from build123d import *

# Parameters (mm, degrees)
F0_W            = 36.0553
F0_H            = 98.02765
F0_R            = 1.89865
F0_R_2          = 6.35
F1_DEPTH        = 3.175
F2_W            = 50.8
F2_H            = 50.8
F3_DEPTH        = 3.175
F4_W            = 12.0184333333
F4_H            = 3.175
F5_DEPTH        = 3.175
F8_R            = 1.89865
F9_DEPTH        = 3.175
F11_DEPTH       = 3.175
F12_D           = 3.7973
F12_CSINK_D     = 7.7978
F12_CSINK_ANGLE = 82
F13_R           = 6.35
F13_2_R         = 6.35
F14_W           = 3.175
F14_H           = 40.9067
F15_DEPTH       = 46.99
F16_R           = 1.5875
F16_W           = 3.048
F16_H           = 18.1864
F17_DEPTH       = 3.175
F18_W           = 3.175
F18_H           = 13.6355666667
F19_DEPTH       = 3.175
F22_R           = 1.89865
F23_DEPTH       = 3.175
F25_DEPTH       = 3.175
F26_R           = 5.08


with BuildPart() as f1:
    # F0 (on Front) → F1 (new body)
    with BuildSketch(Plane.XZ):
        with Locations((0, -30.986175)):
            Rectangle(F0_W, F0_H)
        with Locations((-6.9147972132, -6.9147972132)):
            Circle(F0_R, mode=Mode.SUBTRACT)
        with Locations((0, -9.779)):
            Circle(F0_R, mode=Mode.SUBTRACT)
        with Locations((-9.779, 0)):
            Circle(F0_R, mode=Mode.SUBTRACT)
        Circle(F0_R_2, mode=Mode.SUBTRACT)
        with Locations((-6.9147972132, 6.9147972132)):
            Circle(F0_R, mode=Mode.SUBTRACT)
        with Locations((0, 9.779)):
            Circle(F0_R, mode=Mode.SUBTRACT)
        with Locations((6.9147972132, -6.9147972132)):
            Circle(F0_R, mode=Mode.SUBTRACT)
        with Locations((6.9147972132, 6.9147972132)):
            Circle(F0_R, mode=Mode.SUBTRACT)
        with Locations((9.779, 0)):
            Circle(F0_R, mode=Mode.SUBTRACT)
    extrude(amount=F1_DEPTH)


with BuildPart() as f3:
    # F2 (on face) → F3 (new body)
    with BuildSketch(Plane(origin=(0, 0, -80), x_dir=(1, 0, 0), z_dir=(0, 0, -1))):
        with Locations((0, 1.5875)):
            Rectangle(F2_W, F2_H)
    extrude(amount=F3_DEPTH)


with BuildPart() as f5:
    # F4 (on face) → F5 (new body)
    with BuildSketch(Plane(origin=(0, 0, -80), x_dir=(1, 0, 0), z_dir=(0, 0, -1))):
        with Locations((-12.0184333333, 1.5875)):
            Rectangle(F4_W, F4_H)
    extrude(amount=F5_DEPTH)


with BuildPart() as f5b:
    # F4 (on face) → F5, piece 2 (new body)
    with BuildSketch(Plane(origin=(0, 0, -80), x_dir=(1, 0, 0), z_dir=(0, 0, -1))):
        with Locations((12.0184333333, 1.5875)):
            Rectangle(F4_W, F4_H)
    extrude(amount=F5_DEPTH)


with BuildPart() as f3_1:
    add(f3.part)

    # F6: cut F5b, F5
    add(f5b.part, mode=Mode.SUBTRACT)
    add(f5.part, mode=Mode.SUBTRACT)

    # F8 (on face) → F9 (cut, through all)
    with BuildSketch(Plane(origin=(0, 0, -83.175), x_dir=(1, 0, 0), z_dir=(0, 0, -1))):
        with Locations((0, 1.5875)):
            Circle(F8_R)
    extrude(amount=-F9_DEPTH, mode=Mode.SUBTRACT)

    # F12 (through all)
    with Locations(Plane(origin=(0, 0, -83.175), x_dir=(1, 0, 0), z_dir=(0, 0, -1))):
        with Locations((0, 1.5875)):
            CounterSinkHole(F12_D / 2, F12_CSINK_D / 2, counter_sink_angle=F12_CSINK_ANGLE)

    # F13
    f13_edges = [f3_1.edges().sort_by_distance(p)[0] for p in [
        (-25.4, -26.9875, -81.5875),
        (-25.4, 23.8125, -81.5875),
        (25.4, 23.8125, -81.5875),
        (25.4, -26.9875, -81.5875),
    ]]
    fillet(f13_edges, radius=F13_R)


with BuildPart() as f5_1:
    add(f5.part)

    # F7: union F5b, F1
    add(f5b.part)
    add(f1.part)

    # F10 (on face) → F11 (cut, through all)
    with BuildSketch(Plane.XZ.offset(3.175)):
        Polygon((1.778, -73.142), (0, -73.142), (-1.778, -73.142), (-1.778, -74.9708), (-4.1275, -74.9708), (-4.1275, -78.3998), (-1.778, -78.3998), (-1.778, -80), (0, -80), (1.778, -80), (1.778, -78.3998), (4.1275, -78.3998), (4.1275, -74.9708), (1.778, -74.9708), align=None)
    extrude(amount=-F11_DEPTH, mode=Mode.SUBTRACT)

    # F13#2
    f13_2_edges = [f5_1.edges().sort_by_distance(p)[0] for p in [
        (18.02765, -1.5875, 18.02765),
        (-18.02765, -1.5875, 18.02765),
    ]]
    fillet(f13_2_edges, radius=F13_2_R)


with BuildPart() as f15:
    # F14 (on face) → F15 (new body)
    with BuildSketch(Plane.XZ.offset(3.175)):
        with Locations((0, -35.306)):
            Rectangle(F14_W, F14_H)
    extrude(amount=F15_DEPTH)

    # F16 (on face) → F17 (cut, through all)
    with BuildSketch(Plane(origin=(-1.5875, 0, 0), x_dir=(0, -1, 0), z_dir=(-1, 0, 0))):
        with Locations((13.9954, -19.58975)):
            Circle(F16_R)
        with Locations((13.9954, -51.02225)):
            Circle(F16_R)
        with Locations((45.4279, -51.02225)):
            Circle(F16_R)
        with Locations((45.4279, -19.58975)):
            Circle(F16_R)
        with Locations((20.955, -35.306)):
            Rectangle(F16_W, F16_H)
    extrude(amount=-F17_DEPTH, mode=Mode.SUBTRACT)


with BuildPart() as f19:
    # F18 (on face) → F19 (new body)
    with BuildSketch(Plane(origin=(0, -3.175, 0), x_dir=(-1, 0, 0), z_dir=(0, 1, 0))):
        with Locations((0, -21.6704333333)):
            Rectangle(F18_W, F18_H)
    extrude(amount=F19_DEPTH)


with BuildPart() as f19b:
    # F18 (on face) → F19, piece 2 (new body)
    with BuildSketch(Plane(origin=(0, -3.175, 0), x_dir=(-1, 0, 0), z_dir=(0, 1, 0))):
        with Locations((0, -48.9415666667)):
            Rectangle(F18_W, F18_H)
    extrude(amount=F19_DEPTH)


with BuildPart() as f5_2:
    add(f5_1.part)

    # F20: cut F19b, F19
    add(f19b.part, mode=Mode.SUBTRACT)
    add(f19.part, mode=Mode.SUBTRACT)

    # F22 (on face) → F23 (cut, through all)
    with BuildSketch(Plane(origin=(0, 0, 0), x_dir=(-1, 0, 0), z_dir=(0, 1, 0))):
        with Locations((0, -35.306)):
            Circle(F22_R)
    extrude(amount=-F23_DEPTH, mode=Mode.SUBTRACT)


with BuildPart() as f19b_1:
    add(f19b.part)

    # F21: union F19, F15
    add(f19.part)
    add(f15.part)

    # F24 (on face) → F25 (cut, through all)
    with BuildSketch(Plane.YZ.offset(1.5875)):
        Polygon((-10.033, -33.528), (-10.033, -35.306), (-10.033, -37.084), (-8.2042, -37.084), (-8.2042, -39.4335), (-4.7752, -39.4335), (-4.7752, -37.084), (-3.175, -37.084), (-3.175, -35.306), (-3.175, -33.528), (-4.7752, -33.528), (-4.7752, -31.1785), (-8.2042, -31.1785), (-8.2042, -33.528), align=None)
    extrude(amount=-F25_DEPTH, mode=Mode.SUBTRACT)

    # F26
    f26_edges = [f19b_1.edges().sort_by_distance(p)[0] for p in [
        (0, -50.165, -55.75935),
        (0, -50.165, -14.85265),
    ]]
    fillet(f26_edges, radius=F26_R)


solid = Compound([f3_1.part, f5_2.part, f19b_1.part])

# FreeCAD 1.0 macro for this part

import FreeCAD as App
import Part
import Sketcher
Q = App.Units.Quantity


def edges_at(feature, points):
    """Names of the edges that pass closest to the given points."""
    edges = feature.Shape.Edges
    near = lambda p: min(range(len(edges)), key=lambda i: edges[i].distToShape(Part.Vertex(*p))[0])
    return sorted({f"Edge{near(p) + 1}" for p in points})

doc = App.newDocument("Part")
body = doc.addObject("PartDesign::Body", "Body")

# Sketch on XZ plane
sketch1 = body.newObject("Sketcher::SketchObject", "Sketch")
sketch1.AttachmentSupport = (doc.getObject("XZ_Plane"), [""])
sketch1.MapMode = "FlatFace"
sketch1.addGeometry(Part.LineSegment(App.Vector(-18.02765, 18.02765, 0), App.Vector(-18.02765, -80, 0)), False)
sketch1.addGeometry(Part.LineSegment(App.Vector(-18.02765, -80, 0), App.Vector(18.02765, -80, 0)), False)
sketch1.addGeometry(Part.LineSegment(App.Vector(18.02765, -80, 0), App.Vector(18.02765, 18.02765, 0)), False)
sketch1.addGeometry(Part.LineSegment(App.Vector(18.02765, 18.02765, 0), App.Vector(-18.02765, 18.02765, 0)), False)
sketch1.addGeometry(Part.Circle(App.Vector(-6.914797, -6.914797, 0), App.Vector(0, 0, 1), 1.89865), False)
sketch1.addGeometry(Part.Circle(App.Vector(-9.779, 0, 0), App.Vector(0, 0, 1), 1.89865), False)
sketch1.addGeometry(Part.Circle(App.Vector(0, -9.779, 0), App.Vector(0, 0, 1), 1.89865), False)
sketch1.addGeometry(Part.Circle(App.Vector(6.914797, -6.914797, 0), App.Vector(0, 0, 1), 1.89865), False)
sketch1.addGeometry(Part.Circle(App.Vector(0, 0, 0), App.Vector(0, 0, 1), 6.35), False)
sketch1.addGeometry(Part.Circle(App.Vector(9.779, 0, 0), App.Vector(0, 0, 1), 1.89865), False)
sketch1.addGeometry(Part.Circle(App.Vector(-6.914797, 6.914797, 0), App.Vector(0, 0, 1), 1.89865), False)
sketch1.addGeometry(Part.Circle(App.Vector(0, 9.779, 0), App.Vector(0, 0, 1), 1.89865), False)
sketch1.addGeometry(Part.Circle(App.Vector(6.914797, 6.914797, 0), App.Vector(0, 0, 1), 1.89865), False)
sketch1.addConstraint(Sketcher.Constraint("Coincident", 0, 2, 1, 1))
sketch1.addConstraint(Sketcher.Constraint("Coincident", 1, 2, 2, 1))
sketch1.addConstraint(Sketcher.Constraint("Coincident", 2, 2, 3, 1))
sketch1.addConstraint(Sketcher.Constraint("Coincident", 3, 2, 0, 1))
sketch1.addConstraint(Sketcher.Constraint("Vertical", 0))
sketch1.addConstraint(Sketcher.Constraint("Horizontal", 1))
sketch1.addConstraint(Sketcher.Constraint("Vertical", 2))
sketch1.addConstraint(Sketcher.Constraint("Horizontal", 3))
sketch1.addConstraint(Sketcher.Constraint("Coincident", 8, 3, -1, 1))
sketch1.addConstraint(Sketcher.Constraint("Equal", 4, 5))
sketch1.addConstraint(Sketcher.Constraint("Equal", 5, 6))
sketch1.addConstraint(Sketcher.Constraint("Equal", 6, 7))
sketch1.addConstraint(Sketcher.Constraint("Equal", 7, 9))
sketch1.addConstraint(Sketcher.Constraint("Equal", 9, 10))
sketch1.addConstraint(Sketcher.Constraint("Equal", 10, 11))
sketch1.addConstraint(Sketcher.Constraint("Equal", 11, 12))
sketch1.addConstraint(Sketcher.Constraint("Symmetric", 5, 3, 9, 3, -1, 1))
sketch1.addConstraint(Sketcher.Constraint("Symmetric", 7, 3, 10, 3, -1, 1))
sketch1.addConstraint(Sketcher.Constraint("Symmetric", 6, 3, 11, 3, -1, 1))
sketch1.addConstraint(Sketcher.Constraint("Symmetric", 4, 3, 12, 3, -1, 1))
sketch1.addConstraint(Sketcher.Constraint("Symmetric", 4, 3, 7, 3, -2))
sketch1.addConstraint(Sketcher.Constraint("PointOnObject", 5, 3, -1))
sketch1.addConstraint(Sketcher.Constraint("PointOnObject", 6, 3, -2))
sketch1.addConstraint(Sketcher.Constraint("Diameter", 8, Q("0.5 in")))
sketch1.addConstraint(Sketcher.Constraint("Diameter", 4, Q("0.1495 in")))
sketch1.addConstraint(Sketcher.Constraint("DistanceX", 5, 3, 9, 3, Q("0.77 in")))
sketch1.addConstraint(Sketcher.Constraint("DistanceX", 1, 1, 1, 2, Q("1.4195 in")))
sketch1.addConstraint(Sketcher.Constraint("DistanceY", 6, 3, -1, 1, Q("0.385 in")))
sketch1.addConstraint(Sketcher.Constraint("DistanceY", 0, 2, 0, 1, Q("98.02765 mm")))
sketch1.addConstraint(Sketcher.Constraint("DistanceY", 0, 2, -1, 1, Q("80 mm")))
sketch1.addConstraint(Sketcher.Constraint("DistanceX", 0, 2, -1, 1, Q("18.02765 mm")))
sketch1.addConstraint(Sketcher.Constraint("DistanceX", 4, 3, -1, 1, Q("6.914797 mm")))
sketch1.addConstraint(Sketcher.Constraint("DistanceY", 4, 3, -1, 1, Q("6.914797 mm")))
pad1 = body.newObject("PartDesign::Pad", "Pad")
pad1.Profile = sketch1
pad1.Length = Q("0.125 in")
body2 = doc.addObject("PartDesign::Body", "Body001")

# Sketch on XY plane
sketch2 = body2.newObject("Sketcher::SketchObject", "Sketch001")
sketch2.AttachmentSupport = (doc.getObject("XY_Plane001"), [""])
sketch2.MapMode = "FlatFace"
sketch2.AttachmentOffset = App.Placement(App.Vector(0, 0, -80), App.Rotation())
sketch2.addGeometry(Part.LineSegment(App.Vector(-25.4, -26.9875, 0), App.Vector(-25.4, 23.8125, 0)), False)
sketch2.addGeometry(Part.LineSegment(App.Vector(-25.4, 23.8125, 0), App.Vector(25.4, 23.8125, 0)), False)
sketch2.addGeometry(Part.LineSegment(App.Vector(25.4, 23.8125, 0), App.Vector(25.4, -26.9875, 0)), False)
sketch2.addGeometry(Part.LineSegment(App.Vector(25.4, -26.9875, 0), App.Vector(-25.4, -26.9875, 0)), False)
sketch2.addConstraint(Sketcher.Constraint("Coincident", 0, 2, 1, 1))
sketch2.addConstraint(Sketcher.Constraint("Coincident", 1, 2, 2, 1))
sketch2.addConstraint(Sketcher.Constraint("Coincident", 2, 2, 3, 1))
sketch2.addConstraint(Sketcher.Constraint("Coincident", 3, 2, 0, 1))
sketch2.addConstraint(Sketcher.Constraint("Vertical", 0))
sketch2.addConstraint(Sketcher.Constraint("Horizontal", 1))
sketch2.addConstraint(Sketcher.Constraint("Vertical", 2))
sketch2.addConstraint(Sketcher.Constraint("Horizontal", 3))
sketch2.addConstraint(Sketcher.Constraint("Equal", 3, 0))
sketch2.addConstraint(Sketcher.Constraint("DistanceX", 1, 1, 1, 2, Q("2 in")))
sketch2.addConstraint(Sketcher.Constraint("DistanceX", 0, 2, -1, 1, Q("1 in")))
sketch2.addConstraint(Sketcher.Constraint("DistanceY", -1, 1, 0, 2, Q("0.9375 in")))
pad2 = body2.newObject("PartDesign::Pad", "Pad001")
pad2.Profile = sketch2
pad2.Length = Q("0.125 in")
pad2.Reversed = True
body3 = doc.addObject("PartDesign::Body", "Body002")

# Sketch on XY plane
sketch3 = body3.newObject("Sketcher::SketchObject", "Sketch002")
sketch3.AttachmentSupport = (doc.getObject("XY_Plane002"), [""])
sketch3.MapMode = "FlatFace"
sketch3.AttachmentOffset = App.Placement(App.Vector(0, 0, -80), App.Rotation())
sketch3.addGeometry(Part.LineSegment(App.Vector(-18.02765, -3.175, 0), App.Vector(-18.02765, 0, 0)), False)
sketch3.addGeometry(Part.LineSegment(App.Vector(-18.02765, 0, 0), App.Vector(-6.009217, 0, 0)), False)
sketch3.addGeometry(Part.LineSegment(App.Vector(-6.009217, 0, 0), App.Vector(-6.009217, -3.175, 0)), False)
sketch3.addGeometry(Part.LineSegment(App.Vector(-6.009217, -3.175, 0), App.Vector(-18.02765, -3.175, 0)), False)
sketch3.addConstraint(Sketcher.Constraint("Coincident", 0, 2, 1, 1))
sketch3.addConstraint(Sketcher.Constraint("Coincident", 1, 2, 2, 1))
sketch3.addConstraint(Sketcher.Constraint("Coincident", 2, 2, 3, 1))
sketch3.addConstraint(Sketcher.Constraint("Coincident", 3, 2, 0, 1))
sketch3.addConstraint(Sketcher.Constraint("Vertical", 0))
sketch3.addConstraint(Sketcher.Constraint("Horizontal", 1))
sketch3.addConstraint(Sketcher.Constraint("Vertical", 2))
sketch3.addConstraint(Sketcher.Constraint("Horizontal", 3))
sketch3.addConstraint(Sketcher.Constraint("PointOnObject", 0, 2, -1))
sketch3.addConstraint(Sketcher.Constraint("DistanceY", 0, 1, 0, 2, Q("0.125 in")))
sketch3.addConstraint(Sketcher.Constraint("DistanceX", 1, 1, 1, 2, Q("12.018433 mm")))
sketch3.addConstraint(Sketcher.Constraint("DistanceX", 0, 2, -1, 1, Q("18.02765 mm")))
pad3 = body3.newObject("PartDesign::Pad", "Pad002")
pad3.Profile = sketch3
pad3.Length = Q("0.125 in")
pad3.Reversed = True
body4 = doc.addObject("PartDesign::Body", "Body003")

# Sketch on XY plane
sketch4 = body4.newObject("Sketcher::SketchObject", "Sketch003")
sketch4.AttachmentSupport = (doc.getObject("XY_Plane003"), [""])
sketch4.MapMode = "FlatFace"
sketch4.AttachmentOffset = App.Placement(App.Vector(0, 0, -80), App.Rotation())
sketch4.addGeometry(Part.LineSegment(App.Vector(6.009217, -3.175, 0), App.Vector(6.009217, 0, 0)), False)
sketch4.addGeometry(Part.LineSegment(App.Vector(6.009217, 0, 0), App.Vector(18.02765, 0, 0)), False)
sketch4.addGeometry(Part.LineSegment(App.Vector(18.02765, 0, 0), App.Vector(18.02765, -3.175, 0)), False)
sketch4.addGeometry(Part.LineSegment(App.Vector(18.02765, -3.175, 0), App.Vector(6.009217, -3.175, 0)), False)
sketch4.addConstraint(Sketcher.Constraint("Coincident", 0, 2, 1, 1))
sketch4.addConstraint(Sketcher.Constraint("Coincident", 1, 2, 2, 1))
sketch4.addConstraint(Sketcher.Constraint("Coincident", 2, 2, 3, 1))
sketch4.addConstraint(Sketcher.Constraint("Coincident", 3, 2, 0, 1))
sketch4.addConstraint(Sketcher.Constraint("Vertical", 0))
sketch4.addConstraint(Sketcher.Constraint("Horizontal", 1))
sketch4.addConstraint(Sketcher.Constraint("Vertical", 2))
sketch4.addConstraint(Sketcher.Constraint("Horizontal", 3))
sketch4.addConstraint(Sketcher.Constraint("PointOnObject", 0, 2, -1))
sketch4.addConstraint(Sketcher.Constraint("DistanceY", 0, 1, 0, 2, Q("0.125 in")))
sketch4.addConstraint(Sketcher.Constraint("DistanceX", 1, 1, 1, 2, Q("12.018433 mm")))
sketch4.addConstraint(Sketcher.Constraint("DistanceX", -1, 1, 1, 2, Q("18.02765 mm")))
pad4 = body4.newObject("PartDesign::Pad", "Pad003")
pad4.Profile = sketch4
pad4.Length = Q("0.125 in")
pad4.Reversed = True
doc.recompute()

body5 = doc.addObject("PartDesign::Body", "Body004")
body5.BaseFeature = body4
boolean = body2.newObject("PartDesign::Boolean", "Boolean")
boolean.Type = "Cut"
boolean.addObjects([body5])
doc.recompute()

body6 = doc.addObject("PartDesign::Body", "Body005")
body6.BaseFeature = body3
boolean2 = body2.newObject("PartDesign::Boolean", "Boolean001")
boolean2.Type = "Cut"
boolean2.addObjects([body6])
doc.recompute()

# Sketch on XY plane
sketch5 = body2.newObject("Sketcher::SketchObject", "Sketch004")
sketch5.AttachmentSupport = (doc.getObject("XY_Plane001"), [""])
sketch5.MapMode = "FlatFace"
sketch5.AttachmentOffset = App.Placement(App.Vector(0, 0, -83.175), App.Rotation())
sketch5.addGeometry(Part.Circle(App.Vector(0, -1.5875, 0), App.Vector(0, 0, 1), 1.89865), False)
sketch5.addConstraint(Sketcher.Constraint("PointOnObject", 0, 3, -2))
sketch5.addConstraint(Sketcher.Constraint("Diameter", 0, Q("0.1495 in")))
sketch5.addConstraint(Sketcher.Constraint("DistanceY", 0, 3, -1, 1, Q("0.0625 in")))
pocket1 = body2.newObject("PartDesign::Pocket", "Pocket")
pocket1.Profile = sketch5
pocket1.Type = "ThroughAll"
pocket1.Reversed = True

# Sketch on XY plane
sketch6 = body2.newObject("Sketcher::SketchObject", "Sketch005")
sketch6.AttachmentSupport = (doc.getObject("XY_Plane001"), [""])
sketch6.MapMode = "FlatFace"
sketch6.AttachmentOffset = App.Placement(App.Vector(0, 0, -83.175), App.Rotation())
sketch6.addGeometry(Part.Circle(App.Vector(0, -1.5875, 0), App.Vector(0, 0, 1), 1.89865), False)
sketch6.addConstraint(Sketcher.Constraint("PointOnObject", 0, 3, -2))
sketch6.addConstraint(Sketcher.Constraint("Diameter", 0, Q("0.1495 in")))
sketch6.addConstraint(Sketcher.Constraint("DistanceY", 0, 3, -1, 1, Q("0.0625 in")))
doc.recompute()
hole = body2.newObject("PartDesign::Hole", "Hole")
hole.Profile = sketch6
hole.ThreadType = "None"
hole.Diameter = Q("0.1495 in")
hole.DepthType = "ThroughAll"
hole.HoleCutType = "Countersink"
hole.HoleCutDiameter = Q("0.307 in")
hole.HoleCutCountersinkAngle = 82
hole.Reversed = True
doc.recompute()

fillet = body2.newObject("PartDesign::Fillet", "Fillet")
fillet.Base = (hole, edges_at(hole, [
    (-25.4, -26.988, -81.588),
    (-25.4, 23.812, -81.588),
    (25.4, 23.812, -81.588),
    (25.4, -26.988, -81.588),
]))
fillet.Radius = Q("0.25 in")
body3.AllowCompound = True
doc.recompute()

boolean3 = body3.newObject("PartDesign::Boolean", "Boolean002")
boolean3.Type = "Fuse"
boolean3.addObjects([body4])
doc.recompute()

boolean4 = body3.newObject("PartDesign::Boolean", "Boolean003")
boolean4.Type = "Fuse"
boolean4.addObjects([body])

# Sketch on XZ plane
sketch7 = body3.newObject("Sketcher::SketchObject", "Sketch006")
sketch7.AttachmentSupport = (doc.getObject("XZ_Plane002"), [""])
sketch7.MapMode = "FlatFace"
sketch7.AttachmentOffset = App.Placement(App.Vector(0, 0, 0.125 * 25.4), App.Rotation())
sketch7.addGeometry(Part.LineSegment(App.Vector(1.778, -73.142, 0), App.Vector(-1.778, -73.142, 0)), False)
sketch7.addGeometry(Part.LineSegment(App.Vector(-1.778, -73.142, 0), App.Vector(-1.778, -74.9708, 0)), False)
sketch7.addGeometry(Part.LineSegment(App.Vector(-1.778, -74.9708, 0), App.Vector(-4.1275, -74.9708, 0)), False)
sketch7.addGeometry(Part.LineSegment(App.Vector(-4.1275, -74.9708, 0), App.Vector(-4.1275, -78.3998, 0)), False)
sketch7.addGeometry(Part.LineSegment(App.Vector(-4.1275, -78.3998, 0), App.Vector(-1.778, -78.3998, 0)), False)
sketch7.addGeometry(Part.LineSegment(App.Vector(-1.778, -78.3998, 0), App.Vector(-1.778, -80, 0)), False)
sketch7.addGeometry(Part.LineSegment(App.Vector(-1.778, -80, 0), App.Vector(1.778, -80, 0)), False)
sketch7.addGeometry(Part.LineSegment(App.Vector(1.778, -80, 0), App.Vector(1.778, -78.3998, 0)), False)
sketch7.addGeometry(Part.LineSegment(App.Vector(1.778, -78.3998, 0), App.Vector(4.1275, -78.3998, 0)), False)
sketch7.addGeometry(Part.LineSegment(App.Vector(4.1275, -78.3998, 0), App.Vector(4.1275, -74.9708, 0)), False)
sketch7.addGeometry(Part.LineSegment(App.Vector(4.1275, -74.9708, 0), App.Vector(1.778, -74.9708, 0)), False)
sketch7.addGeometry(Part.LineSegment(App.Vector(1.778, -74.9708, 0), App.Vector(1.778, -73.142, 0)), False)
sketch7.addConstraint(Sketcher.Constraint("Coincident", 0, 2, 1, 1))
sketch7.addConstraint(Sketcher.Constraint("Coincident", 1, 2, 2, 1))
sketch7.addConstraint(Sketcher.Constraint("Coincident", 2, 2, 3, 1))
sketch7.addConstraint(Sketcher.Constraint("Coincident", 3, 2, 4, 1))
sketch7.addConstraint(Sketcher.Constraint("Coincident", 4, 2, 5, 1))
sketch7.addConstraint(Sketcher.Constraint("Coincident", 5, 2, 6, 1))
sketch7.addConstraint(Sketcher.Constraint("Coincident", 6, 2, 7, 1))
sketch7.addConstraint(Sketcher.Constraint("Coincident", 7, 2, 8, 1))
sketch7.addConstraint(Sketcher.Constraint("Coincident", 8, 2, 9, 1))
sketch7.addConstraint(Sketcher.Constraint("Coincident", 9, 2, 10, 1))
sketch7.addConstraint(Sketcher.Constraint("Coincident", 10, 2, 11, 1))
sketch7.addConstraint(Sketcher.Constraint("Coincident", 11, 2, 0, 1))
sketch7.addConstraint(Sketcher.Constraint("Horizontal", 0))
sketch7.addConstraint(Sketcher.Constraint("Vertical", 1))
sketch7.addConstraint(Sketcher.Constraint("Horizontal", 2))
sketch7.addConstraint(Sketcher.Constraint("Vertical", 3))
sketch7.addConstraint(Sketcher.Constraint("Horizontal", 4))
sketch7.addConstraint(Sketcher.Constraint("Vertical", 5))
sketch7.addConstraint(Sketcher.Constraint("Horizontal", 6))
sketch7.addConstraint(Sketcher.Constraint("Vertical", 7))
sketch7.addConstraint(Sketcher.Constraint("Horizontal", 8))
sketch7.addConstraint(Sketcher.Constraint("Vertical", 9))
sketch7.addConstraint(Sketcher.Constraint("Horizontal", 10))
sketch7.addConstraint(Sketcher.Constraint("Vertical", 11))
sketch7.addConstraint(Sketcher.Constraint("Symmetric", 4, 2, 7, 2, -2))
sketch7.addConstraint(Sketcher.Constraint("Symmetric", 2, 2, 9, 2, -2))
sketch7.addConstraint(Sketcher.Constraint("Vertical", 1, 2, 4, 2))
sketch7.addConstraint(Sketcher.Constraint("Vertical", 7, 2, 10, 2))
sketch7.addConstraint(Sketcher.Constraint("DistanceX", 0, 2, 0, 1, Q("0.14 in")))
sketch7.addConstraint(Sketcher.Constraint("DistanceY", 1, 2, 1, 1, Q("0.072 in")))
sketch7.addConstraint(Sketcher.Constraint("DistanceY", 3, 2, 3, 1, Q("0.135 in")))
sketch7.addConstraint(Sketcher.Constraint("DistanceY", 5, 2, 5, 1, Q("0.063 in")))
sketch7.addConstraint(Sketcher.Constraint("DistanceX", 2, 2, 2, 1, Q("0.0925 in")))
sketch7.addConstraint(Sketcher.Constraint("DistanceY", 0, 2, -1, 1, Q("73.142 mm")))
pocket2 = body3.newObject("PartDesign::Pocket", "Pocket001")
pocket2.Profile = sketch7
pocket2.Type = "ThroughAll"
doc.recompute()

fillet2 = body3.newObject("PartDesign::Fillet", "Fillet001")
fillet2.Base = (pocket2, edges_at(pocket2, [(18.028, -1.587, 18.028), (-18.028, -1.587, 18.028)]))
fillet2.Radius = Q("0.25 in")
body7 = doc.addObject("PartDesign::Body", "Body006")

# Sketch on XZ plane
sketch8 = body7.newObject("Sketcher::SketchObject", "Sketch007")
sketch8.AttachmentSupport = (doc.getObject("XZ_Plane006"), [""])
sketch8.MapMode = "FlatFace"
sketch8.AttachmentOffset = App.Placement(App.Vector(0, 0, 0.125 * 25.4), App.Rotation())
sketch8.addGeometry(Part.LineSegment(App.Vector(-1.5875, -14.85265, 0), App.Vector(-1.5875, -55.75935, 0)), False)
sketch8.addGeometry(Part.LineSegment(App.Vector(-1.5875, -55.75935, 0), App.Vector(1.5875, -55.75935, 0)), False)
sketch8.addGeometry(Part.LineSegment(App.Vector(1.5875, -55.75935, 0), App.Vector(1.5875, -14.85265, 0)), False)
sketch8.addGeometry(Part.LineSegment(App.Vector(1.5875, -14.85265, 0), App.Vector(-1.5875, -14.85265, 0)), False)
sketch8.addConstraint(Sketcher.Constraint("Coincident", 0, 2, 1, 1))
sketch8.addConstraint(Sketcher.Constraint("Coincident", 1, 2, 2, 1))
sketch8.addConstraint(Sketcher.Constraint("Coincident", 2, 2, 3, 1))
sketch8.addConstraint(Sketcher.Constraint("Coincident", 3, 2, 0, 1))
sketch8.addConstraint(Sketcher.Constraint("Vertical", 0))
sketch8.addConstraint(Sketcher.Constraint("Horizontal", 1))
sketch8.addConstraint(Sketcher.Constraint("Vertical", 2))
sketch8.addConstraint(Sketcher.Constraint("Horizontal", 3))
sketch8.addConstraint(Sketcher.Constraint("DistanceX", 1, 1, 1, 2, Q("0.125 in")))
sketch8.addConstraint(Sketcher.Constraint("DistanceY", 0, 2, 0, 1, Q("1.6105 in")))
sketch8.addConstraint(Sketcher.Constraint("DistanceX", 0, 2, -1, 1, Q("0.0625 in")))
sketch8.addConstraint(Sketcher.Constraint("DistanceY", 0, 2, -1, 1, Q("55.75935 mm")))
pad5 = body7.newObject("PartDesign::Pad", "Pad004")
pad5.Profile = sketch8
pad5.Length = Q("1.85 in")

# Sketch on YZ plane
sketch9 = body7.newObject("Sketcher::SketchObject", "Sketch008")
sketch9.AttachmentSupport = (doc.getObject("YZ_Plane006"), [""])
sketch9.MapMode = "FlatFace"
sketch9.AttachmentOffset = App.Placement(App.Vector(0, 0, -0.0625 * 25.4), App.Rotation())
sketch9.addGeometry(Part.Circle(App.Vector(-13.9954, -19.58975, 0), App.Vector(0, 0, 1), 1.5875), False)
sketch9.addGeometry(Part.Circle(App.Vector(-13.9954, -51.02225, 0), App.Vector(0, 0, 1), 1.5875), False)
sketch9.addGeometry(Part.Circle(App.Vector(-45.4279, -51.02225, 0), App.Vector(0, 0, 1), 1.5875), False)
sketch9.addGeometry(Part.Circle(App.Vector(-45.4279, -19.58975, 0), App.Vector(0, 0, 1), 1.5875), False)
sketch9.addGeometry(Part.LineSegment(App.Vector(-19.431, -26.2128, 0), App.Vector(-19.431, -44.3992, 0)), False)
sketch9.addGeometry(Part.LineSegment(App.Vector(-19.431, -44.3992, 0), App.Vector(-22.479, -44.3992, 0)), False)
sketch9.addGeometry(Part.LineSegment(App.Vector(-22.479, -44.3992, 0), App.Vector(-22.479, -26.2128, 0)), False)
sketch9.addGeometry(Part.LineSegment(App.Vector(-22.479, -26.2128, 0), App.Vector(-19.431, -26.2128, 0)), False)
sketch9.addConstraint(Sketcher.Constraint("Coincident", 4, 2, 5, 1))
sketch9.addConstraint(Sketcher.Constraint("Coincident", 5, 2, 6, 1))
sketch9.addConstraint(Sketcher.Constraint("Coincident", 6, 2, 7, 1))
sketch9.addConstraint(Sketcher.Constraint("Coincident", 7, 2, 4, 1))
sketch9.addConstraint(Sketcher.Constraint("Vertical", 4))
sketch9.addConstraint(Sketcher.Constraint("Horizontal", 5))
sketch9.addConstraint(Sketcher.Constraint("Vertical", 6))
sketch9.addConstraint(Sketcher.Constraint("Horizontal", 7))
sketch9.addConstraint(Sketcher.Constraint("Equal", 0, 1))
sketch9.addConstraint(Sketcher.Constraint("Equal", 1, 2))
sketch9.addConstraint(Sketcher.Constraint("Equal", 2, 3))
sketch9.addConstraint(Sketcher.Constraint("Horizontal", 1, 3, 2, 3))
sketch9.addConstraint(Sketcher.Constraint("Horizontal", 0, 3, 3, 3))
sketch9.addConstraint(Sketcher.Constraint("Vertical", 0, 3, 1, 3))
sketch9.addConstraint(Sketcher.Constraint("Vertical", 2, 3, 3, 3))
sketch9.addConstraint(Sketcher.Constraint("Diameter", 0, Q("0.125 in")))
sketch9.addConstraint(Sketcher.Constraint("DistanceX", 5, 2, 5, 1, Q("0.12 in")))
sketch9.addConstraint(Sketcher.Constraint("DistanceY", 4, 2, 4, 1, Q("0.716 in")))
sketch9.addConstraint(Sketcher.Constraint("DistanceX", 0, 3, -1, 1, Q("0.551 in")))
sketch9.addConstraint(Sketcher.Constraint("DistanceX", 4, 2, -1, 1, Q("0.765 in")))
sketch9.addConstraint(Sketcher.Constraint("DistanceY", 4, 2, -1, 1, Q("1.748 in")))
sketch9.addConstraint(Sketcher.Constraint("DistanceX", 2, 3, -1, 1, Q("1.7885 in")))
sketch9.addConstraint(Sketcher.Constraint("DistanceY", 1, 3, 0, 3, Q("1.2375 in")))
sketch9.addConstraint(Sketcher.Constraint("DistanceY", 0, 3, -1, 1, Q("19.58975 mm")))
pocket3 = body7.newObject("PartDesign::Pocket", "Pocket002")
pocket3.Profile = sketch9
pocket3.Type = "ThroughAll"
pocket3.Reversed = True
body8 = doc.addObject("PartDesign::Body", "Body007")

# Sketch on XZ plane
sketch10 = body8.newObject("Sketcher::SketchObject", "Sketch009")
sketch10.AttachmentSupport = (doc.getObject("XZ_Plane007"), [""])
sketch10.MapMode = "FlatFace"
sketch10.AttachmentOffset = App.Placement(App.Vector(0, 0, 0.125 * 25.4), App.Rotation())
sketch10.addGeometry(Part.LineSegment(App.Vector(1.5875, -14.85265, 0), App.Vector(1.5875, -28.488217, 0)), False)
sketch10.addGeometry(Part.LineSegment(App.Vector(1.5875, -28.488217, 0), App.Vector(-1.5875, -28.488217, 0)), False)
sketch10.addGeometry(Part.LineSegment(App.Vector(-1.5875, -28.488217, 0), App.Vector(-1.5875, -14.85265, 0)), False)
sketch10.addGeometry(Part.LineSegment(App.Vector(-1.5875, -14.85265, 0), App.Vector(1.5875, -14.85265, 0)), False)
sketch10.addConstraint(Sketcher.Constraint("Coincident", 0, 2, 1, 1))
sketch10.addConstraint(Sketcher.Constraint("Coincident", 1, 2, 2, 1))
sketch10.addConstraint(Sketcher.Constraint("Coincident", 2, 2, 3, 1))
sketch10.addConstraint(Sketcher.Constraint("Coincident", 3, 2, 0, 1))
sketch10.addConstraint(Sketcher.Constraint("Vertical", 0))
sketch10.addConstraint(Sketcher.Constraint("Horizontal", 1))
sketch10.addConstraint(Sketcher.Constraint("Vertical", 2))
sketch10.addConstraint(Sketcher.Constraint("Horizontal", 3))
sketch10.addConstraint(Sketcher.Constraint("DistanceX", 1, 2, 1, 1, Q("0.125 in")))
sketch10.addConstraint(Sketcher.Constraint("DistanceX", -1, 1, 0, 2, Q("0.0625 in")))
sketch10.addConstraint(Sketcher.Constraint("DistanceY", 0, 2, 0, 1, Q("13.635567 mm")))
sketch10.addConstraint(Sketcher.Constraint("DistanceY", 2, 2, -1, 1, Q("14.85265 mm")))
pad6 = body8.newObject("PartDesign::Pad", "Pad005")
pad6.Profile = sketch10
pad6.Length = Q("0.125 in")
pad6.Reversed = True
body9 = doc.addObject("PartDesign::Body", "Body008")

# Sketch on XZ plane
sketch11 = body9.newObject("Sketcher::SketchObject", "Sketch010")
sketch11.AttachmentSupport = (doc.getObject("XZ_Plane008"), [""])
sketch11.MapMode = "FlatFace"
sketch11.AttachmentOffset = App.Placement(App.Vector(0, 0, 0.125 * 25.4), App.Rotation())
sketch11.addGeometry(Part.LineSegment(App.Vector(1.5875, -42.123783, 0), App.Vector(1.5875, -55.75935, 0)), False)
sketch11.addGeometry(Part.LineSegment(App.Vector(1.5875, -55.75935, 0), App.Vector(-1.5875, -55.75935, 0)), False)
sketch11.addGeometry(Part.LineSegment(App.Vector(-1.5875, -55.75935, 0), App.Vector(-1.5875, -42.123783, 0)), False)
sketch11.addGeometry(Part.LineSegment(App.Vector(-1.5875, -42.123783, 0), App.Vector(1.5875, -42.123783, 0)), False)
sketch11.addConstraint(Sketcher.Constraint("Coincident", 0, 2, 1, 1))
sketch11.addConstraint(Sketcher.Constraint("Coincident", 1, 2, 2, 1))
sketch11.addConstraint(Sketcher.Constraint("Coincident", 2, 2, 3, 1))
sketch11.addConstraint(Sketcher.Constraint("Coincident", 3, 2, 0, 1))
sketch11.addConstraint(Sketcher.Constraint("Vertical", 0))
sketch11.addConstraint(Sketcher.Constraint("Horizontal", 1))
sketch11.addConstraint(Sketcher.Constraint("Vertical", 2))
sketch11.addConstraint(Sketcher.Constraint("Horizontal", 3))
sketch11.addConstraint(Sketcher.Constraint("DistanceX", 1, 2, 1, 1, Q("0.125 in")))
sketch11.addConstraint(Sketcher.Constraint("DistanceX", -1, 1, 0, 2, Q("0.0625 in")))
sketch11.addConstraint(Sketcher.Constraint("DistanceY", 0, 2, 0, 1, Q("13.635567 mm")))
sketch11.addConstraint(Sketcher.Constraint("DistanceY", 0, 2, -1, 1, Q("55.75935 mm")))
pad7 = body9.newObject("PartDesign::Pad", "Pad006")
pad7.Profile = sketch11
pad7.Length = Q("0.125 in")
pad7.Reversed = True
doc.recompute()

body10 = doc.addObject("PartDesign::Body", "Body009")
body10.BaseFeature = body9
boolean5 = body3.newObject("PartDesign::Boolean", "Boolean004")
boolean5.Type = "Cut"
boolean5.addObjects([body10])
doc.recompute()

body11 = doc.addObject("PartDesign::Body", "Body010")
body11.BaseFeature = body8
boolean6 = body3.newObject("PartDesign::Boolean", "Boolean005")
boolean6.Type = "Cut"
boolean6.addObjects([body11])
doc.recompute()

# Sketch on XZ plane
sketch12 = body3.newObject("Sketcher::SketchObject", "Sketch011")
sketch12.AttachmentSupport = (doc.getObject("XZ_Plane002"), [""])
sketch12.MapMode = "FlatFace"
sketch12.addGeometry(Part.Circle(App.Vector(0, -35.306, 0), App.Vector(0, 0, 1), 1.89865), False)
sketch12.addConstraint(Sketcher.Constraint("PointOnObject", 0, 3, -2))
sketch12.addConstraint(Sketcher.Constraint("Diameter", 0, Q("0.1495 in")))
sketch12.addConstraint(Sketcher.Constraint("DistanceY", 0, 3, -1, 1, Q("1.39 in")))
pocket4 = body3.newObject("PartDesign::Pocket", "Pocket003")
pocket4.Profile = sketch12
pocket4.Type = "ThroughAll"
pocket4.Reversed = True
body9.AllowCompound = True
doc.recompute()

boolean7 = body9.newObject("PartDesign::Boolean", "Boolean006")
boolean7.Type = "Fuse"
boolean7.addObjects([body8])
doc.recompute()

boolean8 = body9.newObject("PartDesign::Boolean", "Boolean007")
boolean8.Type = "Fuse"
boolean8.addObjects([body7])

# Sketch on YZ plane
sketch13 = body9.newObject("Sketcher::SketchObject", "Sketch012")
sketch13.AttachmentSupport = (doc.getObject("YZ_Plane008"), [""])
sketch13.MapMode = "FlatFace"
sketch13.AttachmentOffset = App.Placement(App.Vector(0, 0, 0.0625 * 25.4), App.Rotation())
sketch13.addGeometry(Part.LineSegment(App.Vector(-10.033, -33.528, 0), App.Vector(-10.033, -37.084, 0)), False)
sketch13.addGeometry(Part.LineSegment(App.Vector(-10.033, -37.084, 0), App.Vector(-8.2042, -37.084, 0)), False)
sketch13.addGeometry(Part.LineSegment(App.Vector(-8.2042, -37.084, 0), App.Vector(-8.2042, -39.4335, 0)), False)
sketch13.addGeometry(Part.LineSegment(App.Vector(-8.2042, -39.4335, 0), App.Vector(-4.7752, -39.4335, 0)), False)
sketch13.addGeometry(Part.LineSegment(App.Vector(-4.7752, -39.4335, 0), App.Vector(-4.7752, -37.084, 0)), False)
sketch13.addGeometry(Part.LineSegment(App.Vector(-4.7752, -37.084, 0), App.Vector(-3.175, -37.084, 0)), False)
sketch13.addGeometry(Part.LineSegment(App.Vector(-3.175, -37.084, 0), App.Vector(-3.175, -33.528, 0)), False)
sketch13.addGeometry(Part.LineSegment(App.Vector(-3.175, -33.528, 0), App.Vector(-4.7752, -33.528, 0)), False)
sketch13.addGeometry(Part.LineSegment(App.Vector(-4.7752, -33.528, 0), App.Vector(-4.7752, -31.1785, 0)), False)
sketch13.addGeometry(Part.LineSegment(App.Vector(-4.7752, -31.1785, 0), App.Vector(-8.2042, -31.1785, 0)), False)
sketch13.addGeometry(Part.LineSegment(App.Vector(-8.2042, -31.1785, 0), App.Vector(-8.2042, -33.528, 0)), False)
sketch13.addGeometry(Part.LineSegment(App.Vector(-8.2042, -33.528, 0), App.Vector(-10.033, -33.528, 0)), False)
sketch13.addConstraint(Sketcher.Constraint("Coincident", 0, 2, 1, 1))
sketch13.addConstraint(Sketcher.Constraint("Coincident", 1, 2, 2, 1))
sketch13.addConstraint(Sketcher.Constraint("Coincident", 2, 2, 3, 1))
sketch13.addConstraint(Sketcher.Constraint("Coincident", 3, 2, 4, 1))
sketch13.addConstraint(Sketcher.Constraint("Coincident", 4, 2, 5, 1))
sketch13.addConstraint(Sketcher.Constraint("Coincident", 5, 2, 6, 1))
sketch13.addConstraint(Sketcher.Constraint("Coincident", 6, 2, 7, 1))
sketch13.addConstraint(Sketcher.Constraint("Coincident", 7, 2, 8, 1))
sketch13.addConstraint(Sketcher.Constraint("Coincident", 8, 2, 9, 1))
sketch13.addConstraint(Sketcher.Constraint("Coincident", 9, 2, 10, 1))
sketch13.addConstraint(Sketcher.Constraint("Coincident", 10, 2, 11, 1))
sketch13.addConstraint(Sketcher.Constraint("Coincident", 11, 2, 0, 1))
sketch13.addConstraint(Sketcher.Constraint("Vertical", 0))
sketch13.addConstraint(Sketcher.Constraint("Horizontal", 1))
sketch13.addConstraint(Sketcher.Constraint("Vertical", 2))
sketch13.addConstraint(Sketcher.Constraint("Horizontal", 3))
sketch13.addConstraint(Sketcher.Constraint("Vertical", 4))
sketch13.addConstraint(Sketcher.Constraint("Horizontal", 5))
sketch13.addConstraint(Sketcher.Constraint("Vertical", 6))
sketch13.addConstraint(Sketcher.Constraint("Horizontal", 7))
sketch13.addConstraint(Sketcher.Constraint("Vertical", 8))
sketch13.addConstraint(Sketcher.Constraint("Horizontal", 9))
sketch13.addConstraint(Sketcher.Constraint("Vertical", 10))
sketch13.addConstraint(Sketcher.Constraint("Horizontal", 11))
sketch13.addConstraint(Sketcher.Constraint("Horizontal", 1, 2, 4, 2))
sketch13.addConstraint(Sketcher.Constraint("Horizontal", 7, 2, 10, 2))
sketch13.addConstraint(Sketcher.Constraint("Vertical", 4, 2, 7, 2))
sketch13.addConstraint(Sketcher.Constraint("Vertical", 2, 2, 9, 2))
sketch13.addConstraint(Sketcher.Constraint("Equal", 4, 8))
sketch13.addConstraint(Sketcher.Constraint("DistanceY", 0, 2, 0, 1, Q("0.14 in")))
sketch13.addConstraint(Sketcher.Constraint("DistanceX", 1, 1, 1, 2, Q("0.072 in")))
sketch13.addConstraint(Sketcher.Constraint("DistanceX", 3, 1, 3, 2, Q("0.135 in")))
sketch13.addConstraint(Sketcher.Constraint("DistanceX", 5, 1, 5, 2, Q("0.063 in")))
sketch13.addConstraint(Sketcher.Constraint("DistanceY", 0, 2, -1, 1, Q("1.46 in")))
sketch13.addConstraint(Sketcher.Constraint("DistanceY", 2, 2, 2, 1, Q("0.0925 in")))
sketch13.addConstraint(Sketcher.Constraint("DistanceX", 0, 2, -1, 1, Q("0.395 in")))
pocket5 = body9.newObject("PartDesign::Pocket", "Pocket004")
pocket5.Profile = sketch13
pocket5.Type = "ThroughAll"
doc.recompute()

fillet3 = body9.newObject("PartDesign::Fillet", "Fillet002")
fillet3.Base = (pocket5, edges_at(pocket5, [(0, -50.165, -55.759), (0, -50.165, -14.853)]))
fillet3.Radius = Q("0.2 in")

doc.recompute()
